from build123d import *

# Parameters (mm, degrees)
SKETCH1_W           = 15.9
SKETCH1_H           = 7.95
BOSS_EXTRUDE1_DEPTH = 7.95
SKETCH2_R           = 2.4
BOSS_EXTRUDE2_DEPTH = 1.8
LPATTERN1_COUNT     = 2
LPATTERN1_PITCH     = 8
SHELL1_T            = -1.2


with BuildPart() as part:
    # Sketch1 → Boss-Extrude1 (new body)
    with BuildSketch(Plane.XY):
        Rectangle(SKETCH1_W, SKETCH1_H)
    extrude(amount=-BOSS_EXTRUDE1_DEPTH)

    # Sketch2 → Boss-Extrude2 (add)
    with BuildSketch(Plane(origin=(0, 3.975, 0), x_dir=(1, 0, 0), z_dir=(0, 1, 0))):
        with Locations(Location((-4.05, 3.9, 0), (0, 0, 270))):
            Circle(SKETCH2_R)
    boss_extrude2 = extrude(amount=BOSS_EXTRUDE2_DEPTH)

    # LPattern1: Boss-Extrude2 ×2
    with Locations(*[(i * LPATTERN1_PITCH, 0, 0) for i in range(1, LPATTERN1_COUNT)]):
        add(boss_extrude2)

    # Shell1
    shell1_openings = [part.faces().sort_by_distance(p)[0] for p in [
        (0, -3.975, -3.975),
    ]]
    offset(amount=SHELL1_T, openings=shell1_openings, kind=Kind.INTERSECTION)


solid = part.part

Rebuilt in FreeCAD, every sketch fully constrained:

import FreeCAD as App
import Part
import Sketcher
from FreeCAD import Vector


def faces_at(feature, points):
    """Names of the faces that lie closest to the given points."""
    faces = feature.Shape.Faces
    near = lambda p: min(range(len(faces)), key=lambda i: faces[i].distToShape(Part.Vertex(*p))[0])
    return sorted({f"Face{near(p) + 1}" for p in points})

doc = App.newDocument("Part")
body = doc.addObject("PartDesign::Body", "Body")

# Sketch on XY plane
sketch1 = body.newObject("Sketcher::SketchObject", "Sketch")
sketch1.AttachmentSupport = (doc.getObject("XY_Plane"), [""])
sketch1.MapMode = "FlatFace"
sketch1.addGeometry(Part.LineSegment(Vector(-7.95, 3.975, 0), Vector(-7.95, -3.975, 0)), False)
sketch1.addGeometry(Part.LineSegment(Vector(-7.95, -3.975, 0), Vector(7.95, -3.975, 0)), False)
sketch1.addGeometry(Part.LineSegment(Vector(7.95, -3.975, 0), Vector(7.95, 3.975, 0)), False)
sketch1.addGeometry(Part.LineSegment(Vector(7.95, 3.975, 0), Vector(-7.95, 3.975, 0)), False)
sketch1.addConstraint(Sketcher.Constraint("Coincident", 0, 2, 1, 1))
sketch1.addConstraint(Sketcher.Constraint("Coincident", 1, 2, 2, 1))
sketch1.addConstraint(Sketcher.Constraint("Coincident", 2, 2, 3, 1))
sketch1.addConstraint(Sketcher.Constraint("Coincident", 3, 2, 0, 1))
sketch1.addConstraint(Sketcher.Constraint("Vertical", 0))
sketch1.addConstraint(Sketcher.Constraint("Horizontal", 1))
sketch1.addConstraint(Sketcher.Constraint("Vertical", 2))
sketch1.addConstraint(Sketcher.Constraint("Horizontal", 3))
sketch1.addConstraint(Sketcher.Constraint("Symmetric", 0, 2, 2, 2, -1, 1))
sketch1.addConstraint(Sketcher.Constraint("DistanceX", 1, 1, 1, 2, 15.9))
sketch1.addConstraint(Sketcher.Constraint("DistanceY", 0, 2, 0, 1, 7.95))
pad1 = body.newObject("PartDesign::Pad", "Pad")
pad1.Profile = sketch1
pad1.Length = 7.95
pad1.Reversed = True

# Sketch on XZ plane
sketch2 = body.newObject("Sketcher::SketchObject", "Sketch001")
sketch2.AttachmentSupport = (doc.getObject("XZ_Plane"), [""])
sketch2.MapMode = "FlatFace"
sketch2.AttachmentOffset = App.Placement(Vector(0, 0, -3.975), App.Rotation())
sketch2.addGeometry(Part.Circle(Vector(-4.05, -3.9, 0), Vector(0, 0, 1), 2.4), False)
sketch2.addConstraint(Sketcher.Constraint("Diameter", 0, 4.8))
sketch2.addConstraint(Sketcher.Constraint("DistanceY", 0, 3, -1, 1, 3.9))
sketch2.addConstraint(Sketcher.Constraint("DistanceX", 0, 3, -1, 1, 4.05))
pad2 = body.newObject("PartDesign::Pad", "Pad001")
pad2.Profile = sketch2
pad2.Length = 1.8
pad2.Reversed = True
doc.recompute()

linearpattern = body.newObject("PartDesign::LinearPattern", "LinearPattern")
linearpattern.Originals = [pad2]
linearpattern.Direction = (doc.getObject("X_Axis"), [""])
linearpattern.Mode = "offset"
linearpattern.Offset = 8
linearpattern.Occurrences = 2
body.Tip = linearpattern
doc.recompute()

thickness = body.newObject("PartDesign::Thickness", "Thickness")
thickness.Base = (linearpattern, faces_at(linearpattern, [(0, -3.975, -3.975)]))
thickness.Value = 1.2
thickness.Reversed = True
thickness.Join = "Intersection"

doc.recompute()
